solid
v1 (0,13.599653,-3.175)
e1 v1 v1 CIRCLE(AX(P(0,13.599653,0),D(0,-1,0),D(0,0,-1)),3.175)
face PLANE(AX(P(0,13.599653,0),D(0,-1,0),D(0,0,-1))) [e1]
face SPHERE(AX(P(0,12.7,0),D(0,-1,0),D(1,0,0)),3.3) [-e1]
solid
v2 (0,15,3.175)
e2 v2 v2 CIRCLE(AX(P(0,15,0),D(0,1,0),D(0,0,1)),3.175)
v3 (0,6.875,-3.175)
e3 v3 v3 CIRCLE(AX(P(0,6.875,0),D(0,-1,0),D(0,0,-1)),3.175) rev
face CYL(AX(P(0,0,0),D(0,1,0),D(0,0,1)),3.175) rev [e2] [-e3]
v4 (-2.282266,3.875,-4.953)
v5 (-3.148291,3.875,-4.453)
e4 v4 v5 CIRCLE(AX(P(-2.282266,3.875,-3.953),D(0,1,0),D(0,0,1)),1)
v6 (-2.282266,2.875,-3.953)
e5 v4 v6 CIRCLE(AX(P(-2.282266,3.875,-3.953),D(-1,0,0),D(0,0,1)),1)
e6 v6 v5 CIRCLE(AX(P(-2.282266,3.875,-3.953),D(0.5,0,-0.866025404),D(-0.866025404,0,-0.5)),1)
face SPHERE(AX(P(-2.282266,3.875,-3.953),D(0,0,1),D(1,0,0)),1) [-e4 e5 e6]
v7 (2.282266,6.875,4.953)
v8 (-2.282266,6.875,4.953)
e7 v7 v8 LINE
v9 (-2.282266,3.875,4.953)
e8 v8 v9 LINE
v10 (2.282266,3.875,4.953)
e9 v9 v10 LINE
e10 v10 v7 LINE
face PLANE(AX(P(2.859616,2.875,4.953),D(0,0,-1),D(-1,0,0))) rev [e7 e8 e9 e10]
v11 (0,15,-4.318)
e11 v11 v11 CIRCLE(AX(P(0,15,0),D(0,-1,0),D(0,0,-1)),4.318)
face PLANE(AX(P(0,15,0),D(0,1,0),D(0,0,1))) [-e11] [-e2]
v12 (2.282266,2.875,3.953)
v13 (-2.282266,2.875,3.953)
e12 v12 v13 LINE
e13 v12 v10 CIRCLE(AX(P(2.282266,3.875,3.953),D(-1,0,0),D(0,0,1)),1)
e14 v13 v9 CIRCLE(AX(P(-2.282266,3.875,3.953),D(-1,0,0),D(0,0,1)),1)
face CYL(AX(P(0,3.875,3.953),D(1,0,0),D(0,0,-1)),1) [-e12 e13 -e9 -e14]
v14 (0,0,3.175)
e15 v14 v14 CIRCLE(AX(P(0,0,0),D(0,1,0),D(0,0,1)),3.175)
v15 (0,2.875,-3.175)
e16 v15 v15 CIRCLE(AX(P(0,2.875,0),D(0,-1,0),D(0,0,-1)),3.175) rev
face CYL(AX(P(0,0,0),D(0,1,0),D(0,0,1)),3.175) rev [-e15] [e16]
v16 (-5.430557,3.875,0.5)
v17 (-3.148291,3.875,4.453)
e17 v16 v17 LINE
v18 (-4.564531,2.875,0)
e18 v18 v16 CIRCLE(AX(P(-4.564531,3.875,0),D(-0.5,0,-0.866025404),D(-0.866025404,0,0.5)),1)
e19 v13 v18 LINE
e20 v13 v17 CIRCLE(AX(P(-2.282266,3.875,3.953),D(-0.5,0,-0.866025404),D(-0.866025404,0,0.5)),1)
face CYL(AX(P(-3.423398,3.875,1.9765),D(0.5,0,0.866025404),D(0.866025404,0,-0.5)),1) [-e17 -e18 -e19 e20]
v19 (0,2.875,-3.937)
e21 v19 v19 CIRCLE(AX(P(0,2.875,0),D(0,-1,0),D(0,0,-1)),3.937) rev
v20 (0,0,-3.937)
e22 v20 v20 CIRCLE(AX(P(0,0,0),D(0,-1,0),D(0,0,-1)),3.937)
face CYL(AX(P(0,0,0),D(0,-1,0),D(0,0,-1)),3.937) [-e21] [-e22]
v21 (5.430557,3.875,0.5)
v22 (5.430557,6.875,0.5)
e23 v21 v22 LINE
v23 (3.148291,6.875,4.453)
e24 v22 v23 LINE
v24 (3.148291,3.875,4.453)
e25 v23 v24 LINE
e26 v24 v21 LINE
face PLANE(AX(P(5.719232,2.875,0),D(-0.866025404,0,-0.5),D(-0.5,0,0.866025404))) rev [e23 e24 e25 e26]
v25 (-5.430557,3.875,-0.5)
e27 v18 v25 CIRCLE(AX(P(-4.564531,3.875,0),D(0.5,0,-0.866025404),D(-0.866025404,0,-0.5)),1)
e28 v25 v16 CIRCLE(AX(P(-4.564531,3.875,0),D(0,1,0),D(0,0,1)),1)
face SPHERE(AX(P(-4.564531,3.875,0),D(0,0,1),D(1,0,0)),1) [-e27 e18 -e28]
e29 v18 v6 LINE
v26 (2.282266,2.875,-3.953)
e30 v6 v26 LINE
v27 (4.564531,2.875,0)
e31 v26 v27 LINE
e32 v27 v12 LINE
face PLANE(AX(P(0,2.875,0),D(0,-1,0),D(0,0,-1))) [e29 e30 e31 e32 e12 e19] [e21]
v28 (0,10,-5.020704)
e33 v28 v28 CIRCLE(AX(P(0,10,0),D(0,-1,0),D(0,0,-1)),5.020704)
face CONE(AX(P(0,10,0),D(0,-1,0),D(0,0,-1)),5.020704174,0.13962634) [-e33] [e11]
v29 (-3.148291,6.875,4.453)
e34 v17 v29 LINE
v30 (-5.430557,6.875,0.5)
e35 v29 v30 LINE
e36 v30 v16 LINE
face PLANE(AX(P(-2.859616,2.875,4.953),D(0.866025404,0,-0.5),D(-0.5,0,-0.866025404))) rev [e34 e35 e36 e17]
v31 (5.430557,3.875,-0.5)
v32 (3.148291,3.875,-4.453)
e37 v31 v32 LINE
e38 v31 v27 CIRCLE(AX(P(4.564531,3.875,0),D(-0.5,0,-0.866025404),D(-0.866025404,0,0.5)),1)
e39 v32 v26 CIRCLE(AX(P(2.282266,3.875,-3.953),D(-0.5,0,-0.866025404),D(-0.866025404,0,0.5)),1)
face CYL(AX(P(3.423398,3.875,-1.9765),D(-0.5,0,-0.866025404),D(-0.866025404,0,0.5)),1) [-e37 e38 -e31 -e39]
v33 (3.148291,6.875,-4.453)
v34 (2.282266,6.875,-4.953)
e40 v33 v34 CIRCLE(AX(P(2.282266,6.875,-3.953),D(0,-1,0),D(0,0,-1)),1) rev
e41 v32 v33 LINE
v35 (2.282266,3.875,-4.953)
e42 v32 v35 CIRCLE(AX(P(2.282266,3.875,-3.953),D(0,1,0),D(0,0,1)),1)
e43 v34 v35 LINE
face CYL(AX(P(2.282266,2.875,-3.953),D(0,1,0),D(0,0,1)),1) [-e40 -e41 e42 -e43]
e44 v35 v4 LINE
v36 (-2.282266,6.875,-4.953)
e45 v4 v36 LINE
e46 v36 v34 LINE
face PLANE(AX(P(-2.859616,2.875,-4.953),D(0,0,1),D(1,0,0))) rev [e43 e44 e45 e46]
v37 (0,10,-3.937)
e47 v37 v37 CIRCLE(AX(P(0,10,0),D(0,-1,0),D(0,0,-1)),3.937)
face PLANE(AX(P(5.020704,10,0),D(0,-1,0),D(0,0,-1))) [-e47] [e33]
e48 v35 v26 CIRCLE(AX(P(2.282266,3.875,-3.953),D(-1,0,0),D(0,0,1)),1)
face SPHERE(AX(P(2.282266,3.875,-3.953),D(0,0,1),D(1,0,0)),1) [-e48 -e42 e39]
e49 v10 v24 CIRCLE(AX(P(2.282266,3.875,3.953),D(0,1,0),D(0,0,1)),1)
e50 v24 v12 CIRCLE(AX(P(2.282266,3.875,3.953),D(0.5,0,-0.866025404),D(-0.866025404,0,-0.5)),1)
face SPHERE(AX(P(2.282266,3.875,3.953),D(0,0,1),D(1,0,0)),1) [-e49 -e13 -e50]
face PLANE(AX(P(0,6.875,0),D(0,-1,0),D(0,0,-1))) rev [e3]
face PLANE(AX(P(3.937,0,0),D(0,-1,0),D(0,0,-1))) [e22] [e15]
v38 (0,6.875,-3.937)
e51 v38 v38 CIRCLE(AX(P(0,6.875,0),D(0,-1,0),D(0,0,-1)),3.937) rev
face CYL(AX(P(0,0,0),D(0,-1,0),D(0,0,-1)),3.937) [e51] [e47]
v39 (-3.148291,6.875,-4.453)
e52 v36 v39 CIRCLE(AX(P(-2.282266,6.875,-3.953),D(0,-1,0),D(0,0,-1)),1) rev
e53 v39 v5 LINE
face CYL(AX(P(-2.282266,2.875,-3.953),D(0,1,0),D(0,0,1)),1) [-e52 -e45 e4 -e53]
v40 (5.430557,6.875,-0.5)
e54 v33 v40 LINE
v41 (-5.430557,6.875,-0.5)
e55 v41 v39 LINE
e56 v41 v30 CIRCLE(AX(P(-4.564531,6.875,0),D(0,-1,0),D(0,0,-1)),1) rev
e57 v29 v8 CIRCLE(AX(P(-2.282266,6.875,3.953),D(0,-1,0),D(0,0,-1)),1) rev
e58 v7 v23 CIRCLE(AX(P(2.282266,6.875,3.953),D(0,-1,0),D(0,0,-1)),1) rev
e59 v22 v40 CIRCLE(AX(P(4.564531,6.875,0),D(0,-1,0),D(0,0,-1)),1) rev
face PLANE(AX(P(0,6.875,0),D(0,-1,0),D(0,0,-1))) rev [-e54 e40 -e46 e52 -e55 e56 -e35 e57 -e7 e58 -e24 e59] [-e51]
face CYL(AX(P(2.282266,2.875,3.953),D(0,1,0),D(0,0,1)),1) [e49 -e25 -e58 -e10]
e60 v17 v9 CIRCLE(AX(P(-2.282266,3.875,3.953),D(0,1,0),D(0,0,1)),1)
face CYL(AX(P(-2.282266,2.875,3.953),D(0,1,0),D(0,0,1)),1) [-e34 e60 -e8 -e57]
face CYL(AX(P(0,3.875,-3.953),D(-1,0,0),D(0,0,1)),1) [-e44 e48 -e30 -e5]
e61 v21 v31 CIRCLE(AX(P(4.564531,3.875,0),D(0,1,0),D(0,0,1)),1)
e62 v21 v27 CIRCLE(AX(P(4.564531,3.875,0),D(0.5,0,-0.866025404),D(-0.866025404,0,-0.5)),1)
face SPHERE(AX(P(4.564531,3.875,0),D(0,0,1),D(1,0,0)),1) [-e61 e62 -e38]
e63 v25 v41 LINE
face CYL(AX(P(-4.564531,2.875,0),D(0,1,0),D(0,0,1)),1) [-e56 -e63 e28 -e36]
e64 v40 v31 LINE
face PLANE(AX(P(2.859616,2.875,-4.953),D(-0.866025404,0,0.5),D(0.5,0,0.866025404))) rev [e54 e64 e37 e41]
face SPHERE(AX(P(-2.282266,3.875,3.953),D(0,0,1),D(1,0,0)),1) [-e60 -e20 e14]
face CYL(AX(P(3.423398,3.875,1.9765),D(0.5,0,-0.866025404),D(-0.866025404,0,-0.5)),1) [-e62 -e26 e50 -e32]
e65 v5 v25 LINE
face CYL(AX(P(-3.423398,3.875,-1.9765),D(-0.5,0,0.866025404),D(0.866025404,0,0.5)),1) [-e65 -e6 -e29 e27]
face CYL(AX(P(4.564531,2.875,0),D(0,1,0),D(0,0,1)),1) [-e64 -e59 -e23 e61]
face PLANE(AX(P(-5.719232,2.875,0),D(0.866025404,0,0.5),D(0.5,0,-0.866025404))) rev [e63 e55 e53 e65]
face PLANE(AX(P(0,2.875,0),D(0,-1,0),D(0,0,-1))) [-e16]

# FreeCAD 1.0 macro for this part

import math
import FreeCAD as App
import Part
import Sketcher

V = App.Vector
Q = App.Units.Quantity


def edges_at(feature, points):
    """Names of the edges that pass closest to the given points."""
    edges = feature.Shape.Edges
    near = lambda p: min(range(len(edges)), key=lambda i: edges[i].distToShape(Part.Vertex(*p))[0])
    return sorted({f"Edge{near(p) + 1}" for p in points})

doc = App.newDocument("Part")
body = doc.addObject("PartDesign::Body", "Body")

sketch1 = body.newObject("Sketcher::SketchObject", "Sketch")
sketch1.AttachmentSupport = (doc.getObject("XY_Plane"), [""])
sketch1.MapMode = "FlatFace"
sketch1.addGeometry([
    Part.LineSegment(V(0, 15, 0), V(0, 0, 0)),
    Part.LineSegment(V(0, 0, 0), V(3.9, 0, 0)),
    Part.LineSegment(V(3.9, 0, 0), V(3.9, 10, 0)),
    Part.LineSegment(V(3.9, 10, 0), V(5, 10, 0)),
    Part.LineSegment(V(5, 10, 0), V(4.3, 15, 0)),
    Part.LineSegment(V(4.3, 15, 0), V(0, 15, 0)),
], False)
sketch1.addConstraint([
    Sketcher.Constraint("Coincident", 0, 2, 1, 1),
    Sketcher.Constraint("Coincident", 1, 2, 2, 1),
    Sketcher.Constraint("Coincident", 2, 2, 3, 1),
    Sketcher.Constraint("Coincident", 3, 2, 4, 1),
    Sketcher.Constraint("Coincident", 4, 2, 5, 1),
    Sketcher.Constraint("Coincident", 5, 2, 0, 1),
    Sketcher.Constraint("Vertical", 0),
    Sketcher.Constraint("Horizontal", 1),
    Sketcher.Constraint("Vertical", 2),
    Sketcher.Constraint("Horizontal", 3),
    Sketcher.Constraint("Horizontal", 5),
    Sketcher.Constraint("Coincident", 0, 2, -1, 1),
    Sketcher.Constraint("DistanceY", 0, 2, 0, 1, Q("15 mm")),
    Sketcher.Constraint("DistanceY", 2, 1, 2, 2, Q("10 mm")),
    Sketcher.Constraint("Angle", 4, Q("98 deg")),
    Sketcher.Constraint("DistanceX", 1, 1, 1, 2, Q("3.937 mm")),
    Sketcher.Constraint("DistanceX", 5, 2, 5, 1, Q("4.318 mm")),
])
revolution = body.newObject("PartDesign::Revolution", "Revolution")
revolution.Profile = sketch1
revolution.ReferenceAxis = (sketch1, ["V_Axis"])
revolution.Angle = 360

sketch2 = body.newObject("Sketcher::SketchObject", "Sketch001")
sketch2.AttachmentSupport = (doc.getObject("XZ_Plane"), [""])
sketch2.MapMode = "FlatFace"
sketch2.AttachmentOffset = App.Placement(V(0, 0, -15), App.Rotation())
sketch2.addGeometry(Part.Circle(V(0, 0, 0), V(0, 0, 1), 3.2), False)
sketch2.addConstraint([
    Sketcher.Constraint("Coincident", 0, 3, -1, 1),
    Sketcher.Constraint("Diameter", 0, Q("6.35 mm")),
])
pocket1 = body.newObject("PartDesign::Pocket", "Pocket")
pocket1.Profile = sketch2
pocket1.Type = "ThroughAll"
pocket1.Reversed = True

sketch3 = body.newObject("Sketcher::SketchObject", "Sketch002")
sketch3.AttachmentSupport = (doc.getObject("XZ_Plane"), [""])
sketch3.MapMode = "FlatFace"
sketch3.AttachmentOffset = App.Placement(V(0, 0, -6.875), App.Rotation())
sketch3.addGeometry([
    Part.LineSegment(V(-6, 0, 0), V(-3, -5, 0)),
    Part.LineSegment(V(-3, -5, 0), V(3, -5, 0)),
    Part.LineSegment(V(3, -5, 0), V(6, 0, 0)),
    Part.LineSegment(V(6, 0, 0), V(3, 5, 0)),
    Part.LineSegment(V(3, 5, 0), V(-3, 5, 0)),
    Part.LineSegment(V(-3, 5, 0), V(-6, 0, 0)),
], False)
sketch3.addConstraint([
    Sketcher.Constraint("Coincident", 0, 2, 1, 1),
    Sketcher.Constraint("Coincident", 1, 2, 2, 1),
    Sketcher.Constraint("Coincident", 2, 2, 3, 1),
    Sketcher.Constraint("Coincident", 3, 2, 4, 1),
    Sketcher.Constraint("Coincident", 4, 2, 5, 1),
    Sketcher.Constraint("Coincident", 5, 2, 0, 1),
    Sketcher.Constraint("Horizontal", 1),
    Sketcher.Constraint("Horizontal", 4),
    Sketcher.Constraint("Symmetric", 0, 2, 3, 2, -1, 1),
    Sketcher.Constraint("Symmetric", 2, 2, 5, 2, -1, 1),
    Sketcher.Constraint("PointOnObject", 2, 2, -1),
    Sketcher.Constraint("Parallel", 2, 5),
    Sketcher.Constraint("Vertical", 1, 2, 3, 2),
    Sketcher.Constraint("Angle", 0, Q("-60 deg")),
    Sketcher.Constraint("DistanceY", 0, 2, -1, 1, Q("4.953 mm")),
    Sketcher.Constraint("DistanceX", 1, 1, 1, 2, Q("5.719232 mm")),
])
pad1 = body.newObject("PartDesign::Pad", "Pad")
pad1.Profile = sketch3
pad1.Length = 4
doc.recompute()

fillet = body.newObject("PartDesign::Fillet", "Fillet")
fillet.Base = (pad1, edges_at(pad1, [
    (-2.86, 4.875, 4.953),
    (-5.719, 4.875, 0),
    (-2.86, 4.875, -4.953),
    (2.86, 4.875, -4.953),
    (5.719, 4.875, 0),
    (2.86, 4.875, 4.953),
]))
fillet.Radius = 1
doc.recompute()

fillet2 = body.newObject("PartDesign::Fillet", "Fillet001")
fillet2.Base = (fillet, edges_at(fillet, [
    (4.289, 2.875, 2.477),
    (4.289, 2.875, -2.477),
    (-4.289, 2.875, 2.477),
    (-4.289, 2.875, -2.477),
    (0, 2.875, -4.953),
    (0, 2.875, 4.953),
    (2.782, 2.875, 4.819),
    (-2.782, 2.875, 4.819),
    (-5.565, 2.875, 0),
    (-2.782, 2.875, -4.819),
    (2.782, 2.875, -4.819),
    (5.565, 2.875, 0),
]))
fillet2.Radius = 1
body2 = doc.addObject("PartDesign::Body", "Body001")

sketch4 = body2.newObject("Sketcher::SketchObject", "Sketch003")
sketch4.AttachmentSupport = (doc.getObject("XY_Plane001"), [""])
sketch4.MapMode = "FlatFace"
sketch4.addGeometry([
    Part.LineSegment(V(0, 16, 0), V(0, 13.6, 0)),
    Part.LineSegment(V(0, 13.6, 0), V(3.2, 13.6, 0)),
    Part.ArcOfCircle(Part.Circle(V(0, 12.7, 0), V(0, 0, 1), 3.3), math.radians(16), math.radians(90)),
], False)
sketch4.addConstraint([
    Sketcher.Constraint("Coincident", 0, 2, 1, 1),
    Sketcher.Constraint("Coincident", 1, 2, 2, 1),
    Sketcher.Constraint("Coincident", 2, 2, 0, 1),
    Sketcher.Constraint("Vertical", 0),
    Sketcher.Constraint("Horizontal", 1),
    Sketcher.Constraint("PointOnObject", 2, 3, -2),
    Sketcher.Constraint("PointOnObject", 0, 2, -2),
    Sketcher.Constraint("Radius", 2, Q("3.3 mm")),
    Sketcher.Constraint("DistanceY", -1, 1, 2, 2, Q("16 mm")),
    Sketcher.Constraint("DistanceX", 1, 1, 1, 2, Q("3.175 mm")),
])
revolution2 = body2.newObject("PartDesign::Revolution", "Revolution001")
revolution2.Profile = sketch4
revolution2.ReferenceAxis = (sketch4, ["V_Axis"])
revolution2.Angle = 360

doc.recompute()
